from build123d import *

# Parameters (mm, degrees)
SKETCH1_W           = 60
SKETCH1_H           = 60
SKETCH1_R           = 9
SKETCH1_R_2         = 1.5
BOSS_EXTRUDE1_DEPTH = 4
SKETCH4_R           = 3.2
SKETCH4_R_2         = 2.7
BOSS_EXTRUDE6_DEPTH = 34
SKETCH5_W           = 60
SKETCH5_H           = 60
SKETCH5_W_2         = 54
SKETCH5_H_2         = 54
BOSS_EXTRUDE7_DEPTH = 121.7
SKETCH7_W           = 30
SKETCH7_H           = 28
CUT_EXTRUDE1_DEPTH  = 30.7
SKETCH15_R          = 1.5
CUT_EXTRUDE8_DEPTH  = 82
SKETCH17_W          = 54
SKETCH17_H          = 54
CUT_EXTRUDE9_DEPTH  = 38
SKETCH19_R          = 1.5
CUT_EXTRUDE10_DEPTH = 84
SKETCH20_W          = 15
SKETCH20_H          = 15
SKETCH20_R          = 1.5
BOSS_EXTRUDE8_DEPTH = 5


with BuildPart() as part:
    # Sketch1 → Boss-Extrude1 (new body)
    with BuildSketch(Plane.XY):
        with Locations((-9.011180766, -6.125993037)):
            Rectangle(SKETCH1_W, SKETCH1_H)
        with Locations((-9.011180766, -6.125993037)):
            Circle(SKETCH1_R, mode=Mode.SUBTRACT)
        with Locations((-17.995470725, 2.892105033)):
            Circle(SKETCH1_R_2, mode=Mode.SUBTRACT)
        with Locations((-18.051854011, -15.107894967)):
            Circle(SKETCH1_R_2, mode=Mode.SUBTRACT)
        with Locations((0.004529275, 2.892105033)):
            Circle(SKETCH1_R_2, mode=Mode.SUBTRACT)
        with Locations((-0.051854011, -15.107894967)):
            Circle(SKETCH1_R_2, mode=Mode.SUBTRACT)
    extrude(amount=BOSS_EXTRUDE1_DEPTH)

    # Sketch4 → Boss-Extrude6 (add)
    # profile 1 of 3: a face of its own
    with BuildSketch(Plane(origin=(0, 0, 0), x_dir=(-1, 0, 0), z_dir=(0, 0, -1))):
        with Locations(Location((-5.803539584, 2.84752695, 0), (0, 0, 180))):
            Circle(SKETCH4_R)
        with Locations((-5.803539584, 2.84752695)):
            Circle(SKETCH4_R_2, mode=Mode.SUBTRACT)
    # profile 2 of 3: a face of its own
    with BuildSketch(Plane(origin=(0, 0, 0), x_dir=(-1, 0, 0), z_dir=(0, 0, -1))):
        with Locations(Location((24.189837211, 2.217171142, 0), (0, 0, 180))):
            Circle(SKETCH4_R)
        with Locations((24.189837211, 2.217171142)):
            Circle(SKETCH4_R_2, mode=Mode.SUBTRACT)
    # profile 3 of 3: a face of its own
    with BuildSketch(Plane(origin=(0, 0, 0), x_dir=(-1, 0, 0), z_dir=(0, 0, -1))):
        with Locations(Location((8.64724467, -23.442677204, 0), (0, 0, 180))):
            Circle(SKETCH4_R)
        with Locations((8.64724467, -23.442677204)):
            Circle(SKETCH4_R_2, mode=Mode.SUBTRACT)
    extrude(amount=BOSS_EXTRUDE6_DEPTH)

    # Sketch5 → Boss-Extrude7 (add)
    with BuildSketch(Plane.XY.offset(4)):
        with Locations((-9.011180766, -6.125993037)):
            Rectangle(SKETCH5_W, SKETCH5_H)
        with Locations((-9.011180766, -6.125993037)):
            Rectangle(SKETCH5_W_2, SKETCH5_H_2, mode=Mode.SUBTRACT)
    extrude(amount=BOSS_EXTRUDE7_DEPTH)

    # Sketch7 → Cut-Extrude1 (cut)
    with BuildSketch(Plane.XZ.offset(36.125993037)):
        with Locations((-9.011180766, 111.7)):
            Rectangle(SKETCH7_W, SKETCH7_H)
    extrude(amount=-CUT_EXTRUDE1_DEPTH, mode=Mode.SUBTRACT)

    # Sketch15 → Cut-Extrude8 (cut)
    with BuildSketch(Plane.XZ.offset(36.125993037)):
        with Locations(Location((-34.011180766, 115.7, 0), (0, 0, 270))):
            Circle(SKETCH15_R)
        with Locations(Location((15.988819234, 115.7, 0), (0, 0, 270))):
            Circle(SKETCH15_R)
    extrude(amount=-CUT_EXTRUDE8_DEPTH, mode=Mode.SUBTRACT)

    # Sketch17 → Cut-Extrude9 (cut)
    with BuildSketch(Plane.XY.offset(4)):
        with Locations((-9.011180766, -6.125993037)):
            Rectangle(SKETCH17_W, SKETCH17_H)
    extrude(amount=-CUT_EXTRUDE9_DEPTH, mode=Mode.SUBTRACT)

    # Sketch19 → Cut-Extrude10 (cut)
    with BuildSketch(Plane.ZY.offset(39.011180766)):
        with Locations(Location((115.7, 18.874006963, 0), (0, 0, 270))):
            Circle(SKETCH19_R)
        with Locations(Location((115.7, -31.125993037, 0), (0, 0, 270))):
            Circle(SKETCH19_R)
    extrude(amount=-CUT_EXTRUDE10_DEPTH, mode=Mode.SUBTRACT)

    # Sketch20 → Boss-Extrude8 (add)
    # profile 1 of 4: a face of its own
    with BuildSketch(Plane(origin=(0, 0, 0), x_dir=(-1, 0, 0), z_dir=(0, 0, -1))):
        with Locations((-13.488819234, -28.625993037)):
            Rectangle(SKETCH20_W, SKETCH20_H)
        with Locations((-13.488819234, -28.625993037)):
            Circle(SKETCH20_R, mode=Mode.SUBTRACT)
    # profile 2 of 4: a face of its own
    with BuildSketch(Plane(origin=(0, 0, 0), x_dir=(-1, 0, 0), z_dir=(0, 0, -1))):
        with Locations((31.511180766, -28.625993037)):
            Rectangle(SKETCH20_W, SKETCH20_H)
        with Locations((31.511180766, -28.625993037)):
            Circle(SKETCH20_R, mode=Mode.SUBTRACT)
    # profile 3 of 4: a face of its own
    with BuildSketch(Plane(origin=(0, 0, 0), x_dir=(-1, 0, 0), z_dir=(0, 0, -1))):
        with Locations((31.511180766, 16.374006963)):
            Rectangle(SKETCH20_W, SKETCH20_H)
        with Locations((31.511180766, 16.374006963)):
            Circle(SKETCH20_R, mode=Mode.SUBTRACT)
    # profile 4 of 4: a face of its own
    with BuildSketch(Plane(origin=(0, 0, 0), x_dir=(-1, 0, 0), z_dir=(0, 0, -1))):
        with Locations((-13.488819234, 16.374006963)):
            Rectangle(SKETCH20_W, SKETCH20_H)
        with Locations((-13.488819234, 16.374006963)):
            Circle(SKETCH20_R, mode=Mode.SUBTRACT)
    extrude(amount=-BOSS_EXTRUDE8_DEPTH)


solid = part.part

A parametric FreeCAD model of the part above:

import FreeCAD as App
import Part
import Sketcher
from FreeCAD import Vector

doc = App.newDocument("Part")
body = doc.addObject("PartDesign::Body", "Body")

# Sketch on XY plane
sketch1 = body.newObject("Sketcher::SketchObject", "Sketch")
sketch1.AttachmentSupport = (doc.getObject("XY_Plane"), [""])
sketch1.MapMode = "FlatFace"
sketch1.addGeometry(Part.LineSegment(Vector(-39.011181, 23.874007, 0), Vector(-39.011181, -36.125993, 0)), False)
sketch1.addGeometry(Part.LineSegment(Vector(-39.011181, -36.125993, 0), Vector(20.988819, -36.125993, 0)), False)
sketch1.addGeometry(Part.LineSegment(Vector(20.988819, -36.125993, 0), Vector(20.988819, 23.874007, 0)), False)
sketch1.addGeometry(Part.LineSegment(Vector(20.988819, 23.874007, 0), Vector(-39.011181, 23.874007, 0)), False)
sketch1.addGeometry(Part.Circle(Vector(-18.051854, -15.107895, 0), Vector(0, 0, 1), 1.5), False)
sketch1.addGeometry(Part.Circle(Vector(-0.051854, -15.107895, 0), Vector(0, 0, 1), 1.5), False)
sketch1.addGeometry(Part.Circle(Vector(-9.011181, -6.125993, 0), Vector(0, 0, 1), 9), False)
sketch1.addGeometry(Part.Circle(Vector(-17.995471, 2.892105, 0), Vector(0, 0, 1), 1.5), False)
sketch1.addGeometry(Part.Circle(Vector(0.004529, 2.892105, 0), Vector(0, 0, 1), 1.5), False)
sketch1.addConstraint(Sketcher.Constraint("Coincident", 0, 2, 1, 1))
sketch1.addConstraint(Sketcher.Constraint("Coincident", 1, 2, 2, 1))
sketch1.addConstraint(Sketcher.Constraint("Coincident", 2, 2, 3, 1))
sketch1.addConstraint(Sketcher.Constraint("Coincident", 3, 2, 0, 1))
sketch1.addConstraint(Sketcher.Constraint("Vertical", 0))
sketch1.addConstraint(Sketcher.Constraint("Horizontal", 1))
sketch1.addConstraint(Sketcher.Constraint("Vertical", 2))
sketch1.addConstraint(Sketcher.Constraint("Horizontal", 3))
sketch1.addConstraint(Sketcher.Constraint("Equal", 4, 5))
sketch1.addConstraint(Sketcher.Constraint("Equal", 5, 7))
sketch1.addConstraint(Sketcher.Constraint("Equal", 7, 8))
sketch1.addConstraint(Sketcher.Constraint("Horizontal", 4, 3, 5, 3))
sketch1.addConstraint(Sketcher.Constraint("Horizontal", 7, 3, 8, 3))
sketch1.addConstraint(Sketcher.Constraint("Equal", 3, 0))
sketch1.addConstraint(Sketcher.Constraint("Diameter", 4, 3.0))
sketch1.addConstraint(Sketcher.Constraint("Diameter", 6, 18.0))
sketch1.addConstraint(Sketcher.Constraint("DistanceX", 1, 1, 1, 2, 60.0))
sketch1.addConstraint(Sketcher.Constraint("DistanceX", 4, 3, 5, 3, 18.0))
sketch1.addConstraint(Sketcher.Constraint("DistanceY", 4, 3, 7, 3, 18.0))
sketch1.addConstraint(Sketcher.Constraint("DistanceX", 7, 3, 8, 3, 18.0))
sketch1.addConstraint(Sketcher.Constraint("DistanceX", 0, 2, 6, 3, 30.0))
sketch1.addConstraint(Sketcher.Constraint("DistanceY", 0, 2, 6, 3, 30.0))
sketch1.addConstraint(Sketcher.Constraint("DistanceY", 5, 3, 6, 3, 8.981902))
sketch1.addConstraint(Sketcher.Constraint("DistanceX", 6, 3, -1, 1, 9.011181))
sketch1.addConstraint(Sketcher.Constraint("DistanceX", 7, 3, -1, 1, 17.995471))
sketch1.addConstraint(Sketcher.Constraint("DistanceX", 4, 3, -1, 1, 18.051854))
sketch1.addConstraint(Sketcher.Constraint("DistanceY", 4, 3, -1, 1, 15.107895))
pad1 = body.newObject("PartDesign::Pad", "Pad")
pad1.Profile = sketch1
pad1.Length = 4

# Sketch on XY plane
sketch2 = body.newObject("Sketcher::SketchObject", "Sketch001")
sketch2.AttachmentSupport = (doc.getObject("XY_Plane"), [""])
sketch2.MapMode = "FlatFace"
sketch2.addGeometry(Part.Circle(Vector(5.80354, 2.847527, 0), Vector(0, 0, 1), 3.2), False)
sketch2.addGeometry(Part.Circle(Vector(5.80354, 2.847527, 0), Vector(0, 0, 1), 2.7), False)
sketch2.addGeometry(Part.Circle(Vector(-24.189837, 2.217171, 0), Vector(0, 0, 1), 3.2), False)
sketch2.addGeometry(Part.Circle(Vector(-24.189837, 2.217171, 0), Vector(0, 0, 1), 2.7), False)
sketch2.addGeometry(Part.Circle(Vector(-8.647245, -23.442677, 0), Vector(0, 0, 1), 3.2), False)
sketch2.addGeometry(Part.Circle(Vector(-8.647245, -23.442677, 0), Vector(0, 0, 1), 2.7), False)
sketch2.addConstraint(Sketcher.Constraint("Coincident", 1, 3, 0, 3))
sketch2.addConstraint(Sketcher.Constraint("Coincident", 3, 3, 2, 3))
sketch2.addConstraint(Sketcher.Constraint("Coincident", 5, 3, 4, 3))
sketch2.addConstraint(Sketcher.Constraint("Equal", 0, 2))
sketch2.addConstraint(Sketcher.Constraint("Equal", 1, 3))
sketch2.addConstraint(Sketcher.Constraint("Equal", 2, 4))
sketch2.addConstraint(Sketcher.Constraint("Equal", 3, 5))
sketch2.addConstraint(Sketcher.Constraint("Diameter", 0, 6.4))
sketch2.addConstraint(Sketcher.Constraint("Diameter", 1, 5.4))
sketch2.addConstraint(Sketcher.Constraint("DistanceX", -1, 1, 0, 3, 5.80354))
sketch2.addConstraint(Sketcher.Constraint("DistanceY", -1, 1, 2, 3, 2.217171))
sketch2.addConstraint(Sketcher.Constraint("DistanceY", 4, 3, 2, 3, 25.659848))
sketch2.addConstraint(Sketcher.Constraint("DistanceY", -1, 1, 0, 3, 2.847527))
sketch2.addConstraint(Sketcher.Constraint("DistanceX", 2, 3, -1, 1, 24.189837))
sketch2.addConstraint(Sketcher.Constraint("DistanceX", 4, 3, -1, 1, 8.647245))
pad2 = body.newObject("PartDesign::Pad", "Pad001")
pad2.Profile = sketch2
pad2.Length = 34
pad2.Reversed = True

# Sketch on XY plane
sketch3 = body.newObject("Sketcher::SketchObject", "Sketch002")
sketch3.AttachmentSupport = (doc.getObject("XY_Plane"), [""])
sketch3.MapMode = "FlatFace"
sketch3.AttachmentOffset = App.Placement(Vector(0, 0, 4), App.Rotation())
sketch3.addGeometry(Part.LineSegment(Vector(-39.011181, 23.874007, 0), Vector(-39.011181, -36.125993, 0)), False)
sketch3.addGeometry(Part.LineSegment(Vector(-39.011181, -36.125993, 0), Vector(20.988819, -36.125993, 0)), False)
sketch3.addGeometry(Part.LineSegment(Vector(20.988819, -36.125993, 0), Vector(20.988819, 23.874007, 0)), False)
sketch3.addGeometry(Part.LineSegment(Vector(20.988819, 23.874007, 0), Vector(-39.011181, 23.874007, 0)), False)
sketch3.addGeometry(Part.LineSegment(Vector(17.988819, -33.125993, 0), Vector(-36.011181, -33.125993, 0)), False)
sketch3.addGeometry(Part.LineSegment(Vector(-36.011181, -33.125993, 0), Vector(-36.011181, 20.874007, 0)), False)
sketch3.addGeometry(Part.LineSegment(Vector(-36.011181, 20.874007, 0), Vector(17.988819, 20.874007, 0)), False)
sketch3.addGeometry(Part.LineSegment(Vector(17.988819, 20.874007, 0), Vector(17.988819, -33.125993, 0)), False)
sketch3.addConstraint(Sketcher.Constraint("Coincident", 0, 2, 1, 1))
sketch3.addConstraint(Sketcher.Constraint("Coincident", 1, 2, 2, 1))
sketch3.addConstraint(Sketcher.Constraint("Coincident", 2, 2, 3, 1))
sketch3.addConstraint(Sketcher.Constraint("Coincident", 3, 2, 0, 1))
sketch3.addConstraint(Sketcher.Constraint("Coincident", 4, 2, 5, 1))
sketch3.addConstraint(Sketcher.Constraint("Coincident", 5, 2, 6, 1))
sketch3.addConstraint(Sketcher.Constraint("Coincident", 6, 2, 7, 1))
sketch3.addConstraint(Sketcher.Constraint("Coincident", 7, 2, 4, 1))
sketch3.addConstraint(Sketcher.Constraint("Vertical", 0))
sketch3.addConstraint(Sketcher.Constraint("Horizontal", 1))
sketch3.addConstraint(Sketcher.Constraint("Vertical", 2))
sketch3.addConstraint(Sketcher.Constraint("Horizontal", 3))
sketch3.addConstraint(Sketcher.Constraint("Horizontal", 4))
sketch3.addConstraint(Sketcher.Constraint("Vertical", 5))
sketch3.addConstraint(Sketcher.Constraint("Horizontal", 6))
sketch3.addConstraint(Sketcher.Constraint("Vertical", 7))
sketch3.addConstraint(Sketcher.Constraint("Equal", 3, 0))
sketch3.addConstraint(Sketcher.Constraint("Equal", 6, 5))
sketch3.addConstraint(Sketcher.Constraint("DistanceX", 1, 1, 1, 2, 60.0))
sketch3.addConstraint(Sketcher.Constraint("DistanceX", 4, 2, 4, 1, 54.0))
sketch3.addConstraint(Sketcher.Constraint("DistanceX", 0, 2, 4, 2, 3.0))
sketch3.addConstraint(Sketcher.Constraint("DistanceY", 0, 2, 4, 2, 3.0))
sketch3.addConstraint(Sketcher.Constraint("DistanceX", 0, 2, -1, 1, 39.011181))
sketch3.addConstraint(Sketcher.Constraint("DistanceY", 0, 2, -1, 1, 36.125993))
pad3 = body.newObject("PartDesign::Pad", "Pad002")
pad3.Profile = sketch3
pad3.Length = 121.7

# Sketch on XZ plane
sketch4 = body.newObject("Sketcher::SketchObject", "Sketch003")
sketch4.AttachmentSupport = (doc.getObject("XZ_Plane"), [""])
sketch4.MapMode = "FlatFace"
sketch4.AttachmentOffset = App.Placement(Vector(0, 0, 36.125993), App.Rotation())
sketch4.addGeometry(Part.LineSegment(Vector(-24.011181, 125.7, 0), Vector(-24.011181, 97.7, 0)), False)
sketch4.addGeometry(Part.LineSegment(Vector(-24.011181, 97.7, 0), Vector(5.988819, 97.7, 0)), False)
sketch4.addGeometry(Part.LineSegment(Vector(5.988819, 97.7, 0), Vector(5.988819, 125.7, 0)), False)
sketch4.addGeometry(Part.LineSegment(Vector(5.988819, 125.7, 0), Vector(-24.011181, 125.7, 0)), False)
sketch4.addConstraint(Sketcher.Constraint("Coincident", 0, 2, 1, 1))
sketch4.addConstraint(Sketcher.Constraint("Coincident", 1, 2, 2, 1))
sketch4.addConstraint(Sketcher.Constraint("Coincident", 2, 2, 3, 1))
sketch4.addConstraint(Sketcher.Constraint("Coincident", 3, 2, 0, 1))
sketch4.addConstraint(Sketcher.Constraint("Vertical", 0))
sketch4.addConstraint(Sketcher.Constraint("Horizontal", 1))
sketch4.addConstraint(Sketcher.Constraint("Vertical", 2))
sketch4.addConstraint(Sketcher.Constraint("Horizontal", 3))
sketch4.addConstraint(Sketcher.Constraint("DistanceX", 1, 1, 1, 2, 30.0))
sketch4.addConstraint(Sketcher.Constraint("DistanceY", 0, 2, 0, 1, 28.0))
sketch4.addConstraint(Sketcher.Constraint("DistanceY", -1, 1, 0, 2, 97.7))
sketch4.addConstraint(Sketcher.Constraint("DistanceX", 0, 2, -1, 1, 24.011181))
pocket1 = body.newObject("PartDesign::Pocket", "Pocket")
pocket1.Profile = sketch4
pocket1.Length = 30.7

# Sketch on XZ plane
sketch5 = body.newObject("Sketcher::SketchObject", "Sketch004")
sketch5.AttachmentSupport = (doc.getObject("XZ_Plane"), [""])
sketch5.MapMode = "FlatFace"
sketch5.AttachmentOffset = App.Placement(Vector(0, 0, 36.125993), App.Rotation())
sketch5.addGeometry(Part.Circle(Vector(-34.011181, 115.7, 0), Vector(0, 0, 1), 1.5), False)
sketch5.addGeometry(Part.Circle(Vector(15.988819, 115.7, 0), Vector(0, 0, 1), 1.5), False)
sketch5.addConstraint(Sketcher.Constraint("Equal", 0, 1))
sketch5.addConstraint(Sketcher.Constraint("Horizontal", 0, 3, 1, 3))
sketch5.addConstraint(Sketcher.Constraint("Diameter", 0, 3.0))
sketch5.addConstraint(Sketcher.Constraint("DistanceX", 0, 3, 1, 3, 50.0))
sketch5.addConstraint(Sketcher.Constraint("DistanceY", -1, 1, 0, 3, 115.7))
sketch5.addConstraint(Sketcher.Constraint("DistanceX", 0, 3, -1, 1, 34.011181))
pocket2 = body.newObject("PartDesign::Pocket", "Pocket001")
pocket2.Profile = sketch5
pocket2.Length = 82

# Sketch on XY plane
sketch6 = body.newObject("Sketcher::SketchObject", "Sketch005")
sketch6.AttachmentSupport = (doc.getObject("XY_Plane"), [""])
sketch6.MapMode = "FlatFace"
sketch6.AttachmentOffset = App.Placement(Vector(0, 0, 4), App.Rotation())
sketch6.addGeometry(Part.LineSegment(Vector(-36.011181, 20.874007, 0), Vector(-36.011181, -33.125993, 0)), False)
sketch6.addGeometry(Part.LineSegment(Vector(-36.011181, -33.125993, 0), Vector(17.988819, -33.125993, 0)), False)
sketch6.addGeometry(Part.LineSegment(Vector(17.988819, -33.125993, 0), Vector(17.988819, 20.874007, 0)), False)
sketch6.addGeometry(Part.LineSegment(Vector(17.988819, 20.874007, 0), Vector(-36.011181, 20.874007, 0)), False)
sketch6.addConstraint(Sketcher.Constraint("Coincident", 0, 2, 1, 1))
sketch6.addConstraint(Sketcher.Constraint("Coincident", 1, 2, 2, 1))
sketch6.addConstraint(Sketcher.Constraint("Coincident", 2, 2, 3, 1))
sketch6.addConstraint(Sketcher.Constraint("Coincident", 3, 2, 0, 1))
sketch6.addConstraint(Sketcher.Constraint("Vertical", 0))
sketch6.addConstraint(Sketcher.Constraint("Horizontal", 1))
sketch6.addConstraint(Sketcher.Constraint("Vertical", 2))
sketch6.addConstraint(Sketcher.Constraint("Horizontal", 3))
sketch6.addConstraint(Sketcher.Constraint("Equal", 3, 0))
sketch6.addConstraint(Sketcher.Constraint("DistanceX", 1, 1, 1, 2, 54.0))
sketch6.addConstraint(Sketcher.Constraint("DistanceX", 0, 2, -1, 1, 36.011181))
sketch6.addConstraint(Sketcher.Constraint("DistanceY", 0, 2, -1, 1, 33.125993))
pocket3 = body.newObject("PartDesign::Pocket", "Pocket002")
pocket3.Profile = sketch6
pocket3.Length = 38

# Sketch on YZ plane
sketch7 = body.newObject("Sketcher::SketchObject", "Sketch006")
sketch7.AttachmentSupport = (doc.getObject("YZ_Plane"), [""])
sketch7.MapMode = "FlatFace"
sketch7.AttachmentOffset = App.Placement(Vector(0, 0, -39.011181), App.Rotation())
sketch7.addGeometry(Part.Circle(Vector(18.874007, 115.7, 0), Vector(0, 0, 1), 1.5), False)
sketch7.addGeometry(Part.Circle(Vector(-31.125993, 115.7, 0), Vector(0, 0, 1), 1.5), False)
sketch7.addConstraint(Sketcher.Constraint("Equal", 0, 1))
sketch7.addConstraint(Sketcher.Constraint("Horizontal", 0, 3, 1, 3))
sketch7.addConstraint(Sketcher.Constraint("Diameter", 0, 3.0))
sketch7.addConstraint(Sketcher.Constraint("DistanceX", 1, 3, 0, 3, 50.0))
sketch7.addConstraint(Sketcher.Constraint("DistanceY", -1, 1, 0, 3, 115.7))
sketch7.addConstraint(Sketcher.Constraint("DistanceX", -1, 1, 0, 3, 18.874007))
pocket4 = body.newObject("PartDesign::Pocket", "Pocket003")
pocket4.Profile = sketch7
pocket4.Length = 84
pocket4.Reversed = True

# Sketch on XY plane
sketch8 = body.newObject("Sketcher::SketchObject", "Sketch007")
sketch8.AttachmentSupport = (doc.getObject("XY_Plane"), [""])
sketch8.MapMode = "FlatFace"
sketch8.addGeometry(Part.LineSegment(Vector(20.988819, -21.125993, 0), Vector(20.988819, -36.125993, 0)), False)
sketch8.addGeometry(Part.LineSegment(Vector(20.988819, -36.125993, 0), Vector(5.988819, -36.125993, 0)), False)
sketch8.addGeometry(Part.LineSegment(Vector(5.988819, -36.125993, 0), Vector(5.988819, -21.125993, 0)), False)
sketch8.addGeometry(Part.LineSegment(Vector(5.988819, -21.125993, 0), Vector(20.988819, -21.125993, 0)), False)
sketch8.addGeometry(Part.Circle(Vector(13.488819, -28.625993, 0), Vector(0, 0, 1), 1.5), False)
sketch8.addGeometry(Part.LineSegment(Vector(-24.011181, -21.125993, 0), Vector(-24.011181, -36.125993, 0)), False)
sketch8.addGeometry(Part.LineSegment(Vector(-24.011181, -36.125993, 0), Vector(-39.011181, -36.125993, 0)), False)
sketch8.addGeometry(Part.LineSegment(Vector(-39.011181, -36.125993, 0), Vector(-39.011181, -21.125993, 0)), False)
sketch8.addGeometry(Part.LineSegment(Vector(-39.011181, -21.125993, 0), Vector(-24.011181, -21.125993, 0)), False)
sketch8.addGeometry(Part.Circle(Vector(-31.511181, -28.625993, 0), Vector(0, 0, 1), 1.5), False)
sketch8.addGeometry(Part.LineSegment(Vector(-24.011181, 23.874007, 0), Vector(-24.011181, 8.874007, 0)), False)
sketch8.addGeometry(Part.LineSegment(Vector(-24.011181, 8.874007, 0), Vector(-39.011181, 8.874007, 0)), False)
sketch8.addGeometry(Part.LineSegment(Vector(-39.011181, 8.874007, 0), Vector(-39.011181, 23.874007, 0)), False)
sketch8.addGeometry(Part.LineSegment(Vector(-39.011181, 23.874007, 0), Vector(-24.011181, 23.874007, 0)), False)
sketch8.addGeometry(Part.Circle(Vector(-31.511181, 16.374007, 0), Vector(0, 0, 1), 1.5), False)
sketch8.addGeometry(Part.LineSegment(Vector(20.988819, 23.874007, 0), Vector(20.988819, 8.874007, 0)), False)
sketch8.addGeometry(Part.LineSegment(Vector(20.988819, 8.874007, 0), Vector(5.988819, 8.874007, 0)), False)
sketch8.addGeometry(Part.LineSegment(Vector(5.988819, 8.874007, 0), Vector(5.988819, 23.874007, 0)), False)
sketch8.addGeometry(Part.LineSegment(Vector(5.988819, 23.874007, 0), Vector(20.988819, 23.874007, 0)), False)
sketch8.addGeometry(Part.Circle(Vector(13.488819, 16.374007, 0), Vector(0, 0, 1), 1.5), False)
sketch8.addConstraint(Sketcher.Constraint("Coincident", 0, 2, 1, 1))
sketch8.addConstraint(Sketcher.Constraint("Coincident", 1, 2, 2, 1))
sketch8.addConstraint(Sketcher.Constraint("Coincident", 2, 2, 3, 1))
sketch8.addConstraint(Sketcher.Constraint("Coincident", 3, 2, 0, 1))
sketch8.addConstraint(Sketcher.Constraint("Coincident", 5, 2, 6, 1))
sketch8.addConstraint(Sketcher.Constraint("Coincident", 6, 2, 7, 1))
sketch8.addConstraint(Sketcher.Constraint("Coincident", 7, 2, 8, 1))
sketch8.addConstraint(Sketcher.Constraint("Coincident", 8, 2, 5, 1))
sketch8.addConstraint(Sketcher.Constraint("Coincident", 10, 2, 11, 1))
sketch8.addConstraint(Sketcher.Constraint("Coincident", 11, 2, 12, 1))
sketch8.addConstraint(Sketcher.Constraint("Coincident", 12, 2, 13, 1))
sketch8.addConstraint(Sketcher.Constraint("Coincident", 13, 2, 10, 1))
sketch8.addConstraint(Sketcher.Constraint("Coincident", 15, 2, 16, 1))
sketch8.addConstraint(Sketcher.Constraint("Coincident", 16, 2, 17, 1))
sketch8.addConstraint(Sketcher.Constraint("Coincident", 17, 2, 18, 1))
sketch8.addConstraint(Sketcher.Constraint("Coincident", 18, 2, 15, 1))
sketch8.addConstraint(Sketcher.Constraint("Vertical", 0))
sketch8.addConstraint(Sketcher.Constraint("Horizontal", 1))
sketch8.addConstraint(Sketcher.Constraint("Vertical", 2))
sketch8.addConstraint(Sketcher.Constraint("Horizontal", 3))
sketch8.addConstraint(Sketcher.Constraint("Vertical", 5))
sketch8.addConstraint(Sketcher.Constraint("Horizontal", 6))
sketch8.addConstraint(Sketcher.Constraint("Vertical", 7))
sketch8.addConstraint(Sketcher.Constraint("Horizontal", 8))
sketch8.addConstraint(Sketcher.Constraint("Vertical", 10))
sketch8.addConstraint(Sketcher.Constraint("Horizontal", 11))
sketch8.addConstraint(Sketcher.Constraint("Vertical", 12))
sketch8.addConstraint(Sketcher.Constraint("Horizontal", 13))
sketch8.addConstraint(Sketcher.Constraint("Vertical", 15))
sketch8.addConstraint(Sketcher.Constraint("Horizontal", 16))
sketch8.addConstraint(Sketcher.Constraint("Vertical", 17))
sketch8.addConstraint(Sketcher.Constraint("Horizontal", 18))
sketch8.addConstraint(Sketcher.Constraint("Equal", 4, 9))
sketch8.addConstraint(Sketcher.Constraint("Equal", 9, 14))
sketch8.addConstraint(Sketcher.Constraint("Equal", 14, 19))
sketch8.addConstraint(Sketcher.Constraint("Horizontal", 4, 3, 9, 3))
sketch8.addConstraint(Sketcher.Constraint("Horizontal", 14, 3, 19, 3))
sketch8.addConstraint(Sketcher.Constraint("Horizontal", 1, 2, 5, 2))
sketch8.addConstraint(Sketcher.Constraint("Horizontal", 3, 2, 7, 2))
sketch8.addConstraint(Sketcher.Constraint("Horizontal", 11, 2, 15, 2))
sketch8.addConstraint(Sketcher.Constraint("Horizontal", 13, 2, 17, 2))
sketch8.addConstraint(Sketcher.Constraint("Vertical", 9, 3, 14, 3))
sketch8.addConstraint(Sketcher.Constraint("Vertical", 4, 3, 19, 3))
sketch8.addConstraint(Sketcher.Constraint("Vertical", 8, 2, 10, 2))
sketch8.addConstraint(Sketcher.Constraint("Vertical", 7, 2, 11, 2))
sketch8.addConstraint(Sketcher.Constraint("Vertical", 3, 2, 15, 2))
sketch8.addConstraint(Sketcher.Constraint("Vertical", 2, 2, 16, 2))
sketch8.addConstraint(Sketcher.Constraint("Equal", 3, 6))
sketch8.addConstraint(Sketcher.Constraint("Equal", 18, 0))
sketch8.addConstraint(Sketcher.Constraint("Equal", 7, 10))
sketch8.addConstraint(Sketcher.Constraint("Diameter", 4, 3.0))
sketch8.addConstraint(Sketcher.Constraint("DistanceX", 1, 2, 1, 1, 15.0))
sketch8.addConstraint(Sketcher.Constraint("DistanceX", 9, 3, 4, 3, 45.0))
sketch8.addConstraint(Sketcher.Constraint("DistanceY", 9, 3, 14, 3, 45.0))
sketch8.addConstraint(Sketcher.Constraint("DistanceX", 5, 2, 1, 2, 30.0))
sketch8.addConstraint(Sketcher.Constraint("DistanceY", 8, 2, 10, 2, 30.0))
sketch8.addConstraint(Sketcher.Constraint("DistanceX", 4, 3, 0, 2, 7.5))
sketch8.addConstraint(Sketcher.Constraint("DistanceY", 0, 2, 4, 3, 7.5))
sketch8.addConstraint(Sketcher.Constraint("DistanceX", -1, 1, 4, 3, 13.488819))
sketch8.addConstraint(Sketcher.Constraint("DistanceY", 4, 3, -1, 1, 28.625993))
pad4 = body.newObject("PartDesign::Pad", "Pad003")
pad4.Profile = sketch8
pad4.Length = 5

doc.recompute()
